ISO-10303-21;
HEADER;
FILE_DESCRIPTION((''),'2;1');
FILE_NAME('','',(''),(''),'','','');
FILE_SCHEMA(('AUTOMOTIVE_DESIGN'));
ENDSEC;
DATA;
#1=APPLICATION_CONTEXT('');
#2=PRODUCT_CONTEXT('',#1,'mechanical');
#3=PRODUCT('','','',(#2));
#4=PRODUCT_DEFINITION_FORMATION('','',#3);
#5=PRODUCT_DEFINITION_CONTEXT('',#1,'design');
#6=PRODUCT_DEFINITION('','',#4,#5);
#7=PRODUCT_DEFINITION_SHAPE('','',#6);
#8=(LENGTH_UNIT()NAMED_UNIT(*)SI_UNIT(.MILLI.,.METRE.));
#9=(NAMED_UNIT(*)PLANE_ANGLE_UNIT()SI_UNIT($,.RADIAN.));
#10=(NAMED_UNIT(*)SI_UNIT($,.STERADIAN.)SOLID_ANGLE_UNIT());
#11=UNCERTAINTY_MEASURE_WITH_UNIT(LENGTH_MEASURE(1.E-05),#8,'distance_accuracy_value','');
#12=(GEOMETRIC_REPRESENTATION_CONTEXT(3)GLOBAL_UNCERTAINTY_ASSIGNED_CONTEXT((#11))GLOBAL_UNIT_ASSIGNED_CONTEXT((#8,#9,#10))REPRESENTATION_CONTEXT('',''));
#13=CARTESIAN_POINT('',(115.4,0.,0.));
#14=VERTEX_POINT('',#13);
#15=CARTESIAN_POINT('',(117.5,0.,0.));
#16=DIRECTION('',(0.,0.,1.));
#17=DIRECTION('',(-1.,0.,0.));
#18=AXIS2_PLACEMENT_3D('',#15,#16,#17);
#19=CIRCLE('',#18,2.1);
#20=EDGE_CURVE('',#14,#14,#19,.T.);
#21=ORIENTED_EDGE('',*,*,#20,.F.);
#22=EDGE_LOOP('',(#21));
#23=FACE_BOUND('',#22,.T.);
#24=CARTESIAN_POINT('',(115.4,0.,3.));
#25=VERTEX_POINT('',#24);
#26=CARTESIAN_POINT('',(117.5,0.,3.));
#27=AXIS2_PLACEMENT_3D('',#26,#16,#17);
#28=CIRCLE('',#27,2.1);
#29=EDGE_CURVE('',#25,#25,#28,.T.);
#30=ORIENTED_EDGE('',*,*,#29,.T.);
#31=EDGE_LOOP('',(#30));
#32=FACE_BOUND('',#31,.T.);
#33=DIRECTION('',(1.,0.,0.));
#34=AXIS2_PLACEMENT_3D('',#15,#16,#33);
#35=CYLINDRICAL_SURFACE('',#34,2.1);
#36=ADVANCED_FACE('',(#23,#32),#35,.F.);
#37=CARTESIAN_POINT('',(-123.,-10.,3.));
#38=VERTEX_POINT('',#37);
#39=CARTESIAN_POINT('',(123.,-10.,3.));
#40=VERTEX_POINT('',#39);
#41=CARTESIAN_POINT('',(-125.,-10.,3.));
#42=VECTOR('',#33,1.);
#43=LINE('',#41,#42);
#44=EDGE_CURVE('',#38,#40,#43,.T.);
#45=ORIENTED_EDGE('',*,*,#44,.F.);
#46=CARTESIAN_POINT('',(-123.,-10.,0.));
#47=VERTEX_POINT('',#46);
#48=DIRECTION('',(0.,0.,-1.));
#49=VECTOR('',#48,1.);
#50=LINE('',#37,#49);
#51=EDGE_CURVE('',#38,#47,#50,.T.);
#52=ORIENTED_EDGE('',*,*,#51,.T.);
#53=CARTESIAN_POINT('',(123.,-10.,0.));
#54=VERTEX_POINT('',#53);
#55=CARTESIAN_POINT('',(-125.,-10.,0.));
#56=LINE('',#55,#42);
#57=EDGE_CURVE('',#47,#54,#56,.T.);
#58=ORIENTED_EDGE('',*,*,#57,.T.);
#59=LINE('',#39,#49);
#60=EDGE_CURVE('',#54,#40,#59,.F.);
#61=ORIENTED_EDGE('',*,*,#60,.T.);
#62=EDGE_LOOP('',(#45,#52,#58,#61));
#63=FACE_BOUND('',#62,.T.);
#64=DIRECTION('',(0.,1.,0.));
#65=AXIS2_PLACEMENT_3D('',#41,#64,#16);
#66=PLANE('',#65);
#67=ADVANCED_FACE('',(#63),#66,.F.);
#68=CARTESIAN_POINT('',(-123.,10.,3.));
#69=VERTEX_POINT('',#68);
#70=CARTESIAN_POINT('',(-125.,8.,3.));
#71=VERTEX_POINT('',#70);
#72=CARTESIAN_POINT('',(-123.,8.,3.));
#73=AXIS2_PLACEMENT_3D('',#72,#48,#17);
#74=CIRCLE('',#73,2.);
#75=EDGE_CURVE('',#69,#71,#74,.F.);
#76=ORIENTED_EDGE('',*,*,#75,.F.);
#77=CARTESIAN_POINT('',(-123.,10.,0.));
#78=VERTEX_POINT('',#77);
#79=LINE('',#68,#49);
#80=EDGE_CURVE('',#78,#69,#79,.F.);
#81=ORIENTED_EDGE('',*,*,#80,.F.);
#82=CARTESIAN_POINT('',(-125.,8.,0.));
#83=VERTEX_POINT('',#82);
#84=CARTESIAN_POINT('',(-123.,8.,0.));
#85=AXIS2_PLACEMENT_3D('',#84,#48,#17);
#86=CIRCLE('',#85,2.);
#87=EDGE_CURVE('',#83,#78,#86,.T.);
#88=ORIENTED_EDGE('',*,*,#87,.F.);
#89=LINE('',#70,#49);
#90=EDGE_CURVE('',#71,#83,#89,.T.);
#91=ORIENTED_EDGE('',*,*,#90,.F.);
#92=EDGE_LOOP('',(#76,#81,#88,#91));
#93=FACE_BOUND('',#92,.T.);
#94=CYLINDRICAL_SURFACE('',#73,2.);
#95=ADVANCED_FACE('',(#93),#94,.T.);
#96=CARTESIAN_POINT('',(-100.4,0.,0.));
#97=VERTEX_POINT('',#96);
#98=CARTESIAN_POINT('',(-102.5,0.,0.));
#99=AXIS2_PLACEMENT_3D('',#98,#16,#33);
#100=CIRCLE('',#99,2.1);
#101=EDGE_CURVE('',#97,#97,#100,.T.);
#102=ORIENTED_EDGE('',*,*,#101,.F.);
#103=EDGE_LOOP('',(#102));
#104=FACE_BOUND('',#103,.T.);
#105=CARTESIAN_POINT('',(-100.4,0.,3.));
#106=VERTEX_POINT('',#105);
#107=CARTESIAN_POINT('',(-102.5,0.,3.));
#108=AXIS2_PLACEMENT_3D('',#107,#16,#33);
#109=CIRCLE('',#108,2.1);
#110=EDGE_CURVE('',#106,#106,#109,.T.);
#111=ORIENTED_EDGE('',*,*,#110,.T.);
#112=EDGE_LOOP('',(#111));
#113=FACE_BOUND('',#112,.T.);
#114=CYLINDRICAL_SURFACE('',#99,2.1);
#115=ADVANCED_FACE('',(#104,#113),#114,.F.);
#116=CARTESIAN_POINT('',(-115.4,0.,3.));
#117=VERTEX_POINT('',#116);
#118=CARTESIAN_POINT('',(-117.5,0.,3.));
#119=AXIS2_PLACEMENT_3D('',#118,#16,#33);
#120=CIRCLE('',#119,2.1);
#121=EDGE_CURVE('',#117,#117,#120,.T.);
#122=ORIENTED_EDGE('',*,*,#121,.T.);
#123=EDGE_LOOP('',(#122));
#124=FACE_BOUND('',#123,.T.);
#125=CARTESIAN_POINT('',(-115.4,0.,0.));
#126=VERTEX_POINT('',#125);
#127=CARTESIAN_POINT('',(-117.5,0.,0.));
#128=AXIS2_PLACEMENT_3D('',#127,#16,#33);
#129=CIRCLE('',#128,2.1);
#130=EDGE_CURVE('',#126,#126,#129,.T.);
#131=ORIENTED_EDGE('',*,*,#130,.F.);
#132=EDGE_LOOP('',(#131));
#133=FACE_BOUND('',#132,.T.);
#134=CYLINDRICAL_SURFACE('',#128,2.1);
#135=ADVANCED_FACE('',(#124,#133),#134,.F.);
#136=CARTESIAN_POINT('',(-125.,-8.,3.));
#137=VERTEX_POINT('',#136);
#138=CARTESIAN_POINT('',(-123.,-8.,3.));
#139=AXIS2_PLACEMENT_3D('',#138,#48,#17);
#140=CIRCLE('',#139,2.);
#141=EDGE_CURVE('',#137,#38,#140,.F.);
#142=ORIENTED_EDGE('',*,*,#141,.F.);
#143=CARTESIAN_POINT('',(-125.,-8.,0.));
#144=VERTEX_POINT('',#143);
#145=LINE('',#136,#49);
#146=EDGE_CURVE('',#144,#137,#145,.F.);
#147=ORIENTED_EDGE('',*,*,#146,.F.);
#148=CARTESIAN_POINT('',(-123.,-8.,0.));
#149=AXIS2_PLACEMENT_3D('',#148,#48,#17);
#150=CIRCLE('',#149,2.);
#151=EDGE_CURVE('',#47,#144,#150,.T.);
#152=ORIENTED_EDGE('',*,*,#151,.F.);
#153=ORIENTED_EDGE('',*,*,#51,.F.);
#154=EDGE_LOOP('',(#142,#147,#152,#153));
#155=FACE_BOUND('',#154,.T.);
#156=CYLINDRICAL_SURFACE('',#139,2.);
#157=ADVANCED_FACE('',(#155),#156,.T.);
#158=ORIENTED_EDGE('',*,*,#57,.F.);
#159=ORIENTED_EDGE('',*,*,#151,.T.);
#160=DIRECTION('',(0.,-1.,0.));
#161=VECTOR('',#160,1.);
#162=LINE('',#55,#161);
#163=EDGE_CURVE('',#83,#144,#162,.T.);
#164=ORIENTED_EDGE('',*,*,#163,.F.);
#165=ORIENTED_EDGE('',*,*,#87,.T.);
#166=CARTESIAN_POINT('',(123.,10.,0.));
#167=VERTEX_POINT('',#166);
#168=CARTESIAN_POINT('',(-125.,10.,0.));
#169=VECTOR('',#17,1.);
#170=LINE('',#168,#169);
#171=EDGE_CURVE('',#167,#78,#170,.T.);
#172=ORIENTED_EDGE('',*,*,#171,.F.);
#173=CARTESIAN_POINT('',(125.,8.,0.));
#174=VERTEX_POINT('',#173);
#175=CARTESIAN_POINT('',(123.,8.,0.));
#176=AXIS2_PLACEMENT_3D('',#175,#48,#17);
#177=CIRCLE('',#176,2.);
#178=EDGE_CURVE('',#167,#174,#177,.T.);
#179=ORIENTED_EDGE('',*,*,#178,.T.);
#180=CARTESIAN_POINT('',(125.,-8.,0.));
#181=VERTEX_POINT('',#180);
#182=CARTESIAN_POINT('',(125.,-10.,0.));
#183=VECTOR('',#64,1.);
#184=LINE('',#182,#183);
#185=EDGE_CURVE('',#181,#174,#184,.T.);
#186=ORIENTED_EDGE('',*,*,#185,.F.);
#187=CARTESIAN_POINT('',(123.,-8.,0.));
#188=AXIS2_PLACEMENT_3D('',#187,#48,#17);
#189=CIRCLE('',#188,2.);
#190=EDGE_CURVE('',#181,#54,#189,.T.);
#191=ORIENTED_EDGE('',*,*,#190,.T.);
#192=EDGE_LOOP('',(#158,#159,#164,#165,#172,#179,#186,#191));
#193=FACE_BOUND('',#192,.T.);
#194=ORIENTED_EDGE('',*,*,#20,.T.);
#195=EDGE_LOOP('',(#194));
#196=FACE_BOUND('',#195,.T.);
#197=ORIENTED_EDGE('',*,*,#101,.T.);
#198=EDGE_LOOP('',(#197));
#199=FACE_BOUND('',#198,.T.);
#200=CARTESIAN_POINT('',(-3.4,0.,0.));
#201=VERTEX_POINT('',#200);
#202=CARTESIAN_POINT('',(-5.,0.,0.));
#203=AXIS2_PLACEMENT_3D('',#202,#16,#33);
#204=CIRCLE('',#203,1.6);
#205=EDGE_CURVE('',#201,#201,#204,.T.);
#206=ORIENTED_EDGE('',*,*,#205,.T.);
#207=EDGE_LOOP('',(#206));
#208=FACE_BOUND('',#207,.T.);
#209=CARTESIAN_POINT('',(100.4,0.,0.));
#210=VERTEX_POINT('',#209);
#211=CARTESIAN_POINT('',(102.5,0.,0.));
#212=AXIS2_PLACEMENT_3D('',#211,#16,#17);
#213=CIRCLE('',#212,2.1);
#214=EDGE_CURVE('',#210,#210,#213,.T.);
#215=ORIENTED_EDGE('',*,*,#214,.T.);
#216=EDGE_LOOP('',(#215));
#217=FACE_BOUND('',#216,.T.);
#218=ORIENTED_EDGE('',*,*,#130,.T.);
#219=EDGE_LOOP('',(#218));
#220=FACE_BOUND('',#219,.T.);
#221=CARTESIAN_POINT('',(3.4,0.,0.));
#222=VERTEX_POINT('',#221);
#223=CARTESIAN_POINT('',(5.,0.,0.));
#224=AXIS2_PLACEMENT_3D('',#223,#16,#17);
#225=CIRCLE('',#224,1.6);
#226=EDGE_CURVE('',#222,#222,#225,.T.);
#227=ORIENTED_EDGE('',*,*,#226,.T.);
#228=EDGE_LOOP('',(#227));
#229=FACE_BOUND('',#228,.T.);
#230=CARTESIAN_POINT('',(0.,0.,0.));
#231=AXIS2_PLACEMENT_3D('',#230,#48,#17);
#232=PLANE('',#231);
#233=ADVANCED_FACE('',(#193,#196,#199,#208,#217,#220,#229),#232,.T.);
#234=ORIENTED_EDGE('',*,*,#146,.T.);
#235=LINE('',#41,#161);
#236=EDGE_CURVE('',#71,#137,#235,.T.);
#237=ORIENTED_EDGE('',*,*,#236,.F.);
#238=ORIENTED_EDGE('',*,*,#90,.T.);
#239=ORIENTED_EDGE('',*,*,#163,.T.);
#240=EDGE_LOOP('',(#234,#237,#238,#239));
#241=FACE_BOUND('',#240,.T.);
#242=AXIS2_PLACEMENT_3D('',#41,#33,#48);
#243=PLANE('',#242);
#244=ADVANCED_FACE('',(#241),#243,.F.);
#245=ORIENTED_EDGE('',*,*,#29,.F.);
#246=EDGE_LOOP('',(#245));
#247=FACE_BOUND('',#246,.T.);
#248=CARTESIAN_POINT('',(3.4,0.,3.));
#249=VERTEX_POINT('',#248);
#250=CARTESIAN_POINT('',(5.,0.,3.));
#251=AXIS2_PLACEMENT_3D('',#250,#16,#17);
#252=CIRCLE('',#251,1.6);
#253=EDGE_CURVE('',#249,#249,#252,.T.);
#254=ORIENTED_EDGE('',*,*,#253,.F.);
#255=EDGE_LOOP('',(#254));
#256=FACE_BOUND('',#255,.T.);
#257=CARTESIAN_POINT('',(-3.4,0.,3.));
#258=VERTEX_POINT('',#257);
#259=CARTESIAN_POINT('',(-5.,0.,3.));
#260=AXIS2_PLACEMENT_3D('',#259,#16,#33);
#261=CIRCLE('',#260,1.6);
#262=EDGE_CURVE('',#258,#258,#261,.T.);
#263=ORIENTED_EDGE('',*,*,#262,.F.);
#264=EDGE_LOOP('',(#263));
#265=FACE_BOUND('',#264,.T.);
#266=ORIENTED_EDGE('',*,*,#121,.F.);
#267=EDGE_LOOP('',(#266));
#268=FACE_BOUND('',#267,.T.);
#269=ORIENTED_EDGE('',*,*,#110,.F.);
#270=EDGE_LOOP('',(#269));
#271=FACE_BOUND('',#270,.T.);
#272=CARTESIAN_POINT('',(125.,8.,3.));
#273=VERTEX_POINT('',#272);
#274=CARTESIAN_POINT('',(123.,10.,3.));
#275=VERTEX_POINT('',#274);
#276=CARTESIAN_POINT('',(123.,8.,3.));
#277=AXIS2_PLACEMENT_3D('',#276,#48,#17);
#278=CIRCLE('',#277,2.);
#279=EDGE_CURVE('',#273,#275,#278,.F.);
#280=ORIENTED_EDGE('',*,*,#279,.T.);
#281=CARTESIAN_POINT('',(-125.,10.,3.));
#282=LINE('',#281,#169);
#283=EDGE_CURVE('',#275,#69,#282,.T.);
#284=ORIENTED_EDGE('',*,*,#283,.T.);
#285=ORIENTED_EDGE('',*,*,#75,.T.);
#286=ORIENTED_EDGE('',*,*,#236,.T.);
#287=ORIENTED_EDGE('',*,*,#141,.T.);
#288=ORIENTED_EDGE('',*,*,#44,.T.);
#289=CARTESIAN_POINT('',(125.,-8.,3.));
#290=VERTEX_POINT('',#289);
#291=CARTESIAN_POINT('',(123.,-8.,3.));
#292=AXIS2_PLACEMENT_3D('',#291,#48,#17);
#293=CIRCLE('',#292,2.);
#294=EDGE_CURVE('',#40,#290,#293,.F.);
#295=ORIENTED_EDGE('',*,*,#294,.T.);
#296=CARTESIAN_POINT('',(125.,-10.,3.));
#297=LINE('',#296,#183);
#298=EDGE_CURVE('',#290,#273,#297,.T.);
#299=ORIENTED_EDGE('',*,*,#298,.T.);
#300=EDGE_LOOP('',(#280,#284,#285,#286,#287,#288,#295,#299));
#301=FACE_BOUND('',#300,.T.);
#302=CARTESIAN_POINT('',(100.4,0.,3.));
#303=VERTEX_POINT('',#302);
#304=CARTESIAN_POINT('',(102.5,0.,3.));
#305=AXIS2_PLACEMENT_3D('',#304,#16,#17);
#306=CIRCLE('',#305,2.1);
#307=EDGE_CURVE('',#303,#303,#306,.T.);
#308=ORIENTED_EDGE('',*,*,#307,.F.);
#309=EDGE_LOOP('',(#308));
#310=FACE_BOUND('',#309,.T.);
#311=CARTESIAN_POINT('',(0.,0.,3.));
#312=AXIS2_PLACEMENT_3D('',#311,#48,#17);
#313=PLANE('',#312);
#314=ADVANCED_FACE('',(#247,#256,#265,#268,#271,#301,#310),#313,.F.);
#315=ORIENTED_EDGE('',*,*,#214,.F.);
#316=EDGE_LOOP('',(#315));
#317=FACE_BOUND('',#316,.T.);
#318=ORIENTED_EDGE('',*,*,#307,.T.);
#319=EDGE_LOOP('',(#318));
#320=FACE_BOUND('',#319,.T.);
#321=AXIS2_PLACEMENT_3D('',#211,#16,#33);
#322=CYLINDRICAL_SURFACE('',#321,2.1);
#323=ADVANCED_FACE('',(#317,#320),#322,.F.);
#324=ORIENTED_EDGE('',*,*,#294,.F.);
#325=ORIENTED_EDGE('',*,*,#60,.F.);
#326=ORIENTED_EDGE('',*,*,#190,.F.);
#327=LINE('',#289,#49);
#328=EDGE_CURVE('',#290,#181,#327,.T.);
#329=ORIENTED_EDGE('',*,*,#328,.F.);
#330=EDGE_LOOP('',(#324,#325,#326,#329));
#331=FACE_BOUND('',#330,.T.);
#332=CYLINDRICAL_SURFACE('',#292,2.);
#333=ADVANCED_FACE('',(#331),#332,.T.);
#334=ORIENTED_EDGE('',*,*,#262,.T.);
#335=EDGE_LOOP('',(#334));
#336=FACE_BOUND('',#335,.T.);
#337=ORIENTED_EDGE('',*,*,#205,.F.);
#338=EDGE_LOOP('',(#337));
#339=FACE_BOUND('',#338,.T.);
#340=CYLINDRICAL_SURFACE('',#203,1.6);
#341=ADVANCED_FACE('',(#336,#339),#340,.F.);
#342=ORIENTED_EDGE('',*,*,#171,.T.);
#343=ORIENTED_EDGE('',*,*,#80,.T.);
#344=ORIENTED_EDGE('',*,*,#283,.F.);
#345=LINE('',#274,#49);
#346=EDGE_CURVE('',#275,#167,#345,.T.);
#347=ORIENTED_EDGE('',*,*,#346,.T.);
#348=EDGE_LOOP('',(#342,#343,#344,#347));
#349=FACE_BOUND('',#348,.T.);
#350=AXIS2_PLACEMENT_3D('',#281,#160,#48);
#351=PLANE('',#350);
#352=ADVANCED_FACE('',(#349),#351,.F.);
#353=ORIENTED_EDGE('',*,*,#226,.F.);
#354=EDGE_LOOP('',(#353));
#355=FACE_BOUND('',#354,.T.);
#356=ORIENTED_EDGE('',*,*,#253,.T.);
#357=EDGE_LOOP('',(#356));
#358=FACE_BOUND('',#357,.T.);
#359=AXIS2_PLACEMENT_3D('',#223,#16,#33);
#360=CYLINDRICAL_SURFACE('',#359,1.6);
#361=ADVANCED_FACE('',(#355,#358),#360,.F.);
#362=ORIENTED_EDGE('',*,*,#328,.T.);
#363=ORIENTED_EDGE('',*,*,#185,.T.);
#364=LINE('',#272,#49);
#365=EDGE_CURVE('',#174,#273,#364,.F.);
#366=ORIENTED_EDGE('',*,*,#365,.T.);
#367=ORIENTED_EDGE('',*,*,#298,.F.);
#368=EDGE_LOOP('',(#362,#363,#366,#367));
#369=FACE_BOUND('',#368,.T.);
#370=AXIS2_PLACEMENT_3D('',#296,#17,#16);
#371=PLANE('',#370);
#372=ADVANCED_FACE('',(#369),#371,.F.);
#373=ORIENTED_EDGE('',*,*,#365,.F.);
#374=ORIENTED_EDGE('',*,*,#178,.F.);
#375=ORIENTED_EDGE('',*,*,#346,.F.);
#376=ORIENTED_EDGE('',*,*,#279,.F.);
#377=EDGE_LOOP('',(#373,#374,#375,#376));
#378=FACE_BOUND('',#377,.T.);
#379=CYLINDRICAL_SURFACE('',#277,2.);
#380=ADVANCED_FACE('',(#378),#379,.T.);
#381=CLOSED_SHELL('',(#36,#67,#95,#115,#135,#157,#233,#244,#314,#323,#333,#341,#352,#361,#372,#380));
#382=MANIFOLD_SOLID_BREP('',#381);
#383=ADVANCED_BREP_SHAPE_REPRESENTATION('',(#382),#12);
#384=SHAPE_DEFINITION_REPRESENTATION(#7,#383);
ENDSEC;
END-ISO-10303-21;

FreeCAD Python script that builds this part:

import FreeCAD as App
import Part
import Sketcher
from FreeCAD import Vector


def edges_at(feature, points):
    """Names of the edges that pass closest to the given points."""
    edges = feature.Shape.Edges
    near = lambda p: min(range(len(edges)), key=lambda i: edges[i].distToShape(Part.Vertex(*p))[0])
    return sorted({f"Edge{near(p) + 1}" for p in points})

doc = App.newDocument("Part")
body = doc.addObject("PartDesign::Body", "Body")

# Sketch on XY plane
sketch1 = body.newObject("Sketcher::SketchObject", "Sketch")
sketch1.AttachmentSupport = (doc.getObject("XY_Plane"), [""])
sketch1.MapMode = "FlatFace"
sketch1.addGeometry([
    Part.LineSegment(Vector(-125, 10, 0), Vector(-125, -10, 0)),
    Part.LineSegment(Vector(-125, -10, 0), Vector(125, -10, 0)),
    Part.LineSegment(Vector(125, -10, 0), Vector(125, 10, 0)),
    Part.LineSegment(Vector(125, 10, 0), Vector(-125, 10, 0)),
], False)
sketch1.addConstraint([
    Sketcher.Constraint("Coincident", 0, 2, 1, 1),
    Sketcher.Constraint("Coincident", 1, 2, 2, 1),
    Sketcher.Constraint("Coincident", 2, 2, 3, 1),
    Sketcher.Constraint("Coincident", 3, 2, 0, 1),
    Sketcher.Constraint("Vertical", 0),
    Sketcher.Constraint("Horizontal", 1),
    Sketcher.Constraint("Vertical", 2),
    Sketcher.Constraint("Horizontal", 3),
    Sketcher.Constraint("Symmetric", 0, 2, 2, 2, -1, 1),
    Sketcher.Constraint("DistanceX", 1, 1, 1, 2, 250.0),
    Sketcher.Constraint("DistanceY", 0, 2, 0, 1, 20.0),
])
pad1 = body.newObject("PartDesign::Pad", "Pad")
pad1.Profile = sketch1
pad1.Length = 3

# Sketch on XY plane
sketch2 = body.newObject("Sketcher::SketchObject", "Sketch001")
sketch2.AttachmentSupport = (doc.getObject("XY_Plane"), [""])
sketch2.MapMode = "FlatFace"
sketch2.AttachmentOffset = App.Placement(Vector(0, 0, 3), App.Rotation())
sketch2.addGeometry([
    Part.Circle(Vector(-117.5, 0, 0), Vector(0, 0, 1), 2.1),  # 0
    Part.Circle(Vector(-102.5, 0, 0), Vector(0, 0, 1), 2.1),  # 1
    Part.Circle(Vector(102.5, 0, 0), Vector(0, 0, 1), 2.1),  # 2
    Part.Circle(Vector(117.5, 0, 0), Vector(0, 0, 1), 2.1),  # 3
    Part.Circle(Vector(-5, 0, 0), Vector(0, 0, 1), 1.6),  # 4
    Part.Circle(Vector(5, 0, 0), Vector(0, 0, 1), 1.6),  # 5
], False)
sketch2.addConstraint([
    Sketcher.Constraint("Equal", 0, 1),
    Sketcher.Constraint("Equal", 1, 2),
    Sketcher.Constraint("Equal", 2, 3),
    Sketcher.Constraint("Equal", 4, 5),
    Sketcher.Constraint("Symmetric", 1, 3, 2, 3, -1, 1),
    Sketcher.Constraint("Symmetric", 0, 3, 3, 3, -1, 1),
    Sketcher.Constraint("Symmetric", 4, 3, 5, 3, -1, 1),
    Sketcher.Constraint("PointOnObject", 0, 3, -1),
    Sketcher.Constraint("PointOnObject", 1, 3, -1),
    Sketcher.Constraint("PointOnObject", 4, 3, -1),
    Sketcher.Constraint("Diameter", 0, 4.2),
    Sketcher.Constraint("Diameter", 4, 3.2),
    Sketcher.Constraint("DistanceX", 4, 3, -1, 1, 5.0),
    Sketcher.Constraint("DistanceX", 0, 3, 1, 3, 15.0),
    Sketcher.Constraint("DistanceX", 1, 3, 2, 3, 205.0),
])
pocket1 = body.newObject("PartDesign::Pocket", "Pocket")
pocket1.Profile = sketch2
pocket1.Length = 3
doc.recompute()

fillet = body.newObject("PartDesign::Fillet", "Fillet")
fillet.Base = (pocket1, edges_at(pocket1, [
    (125, -10, 1.5),
    (-125, -10, 1.5),
    (-125, 10, 1.5),
    (125, 10, 1.5),
]))
fillet.Radius = 2

doc.recompute()
